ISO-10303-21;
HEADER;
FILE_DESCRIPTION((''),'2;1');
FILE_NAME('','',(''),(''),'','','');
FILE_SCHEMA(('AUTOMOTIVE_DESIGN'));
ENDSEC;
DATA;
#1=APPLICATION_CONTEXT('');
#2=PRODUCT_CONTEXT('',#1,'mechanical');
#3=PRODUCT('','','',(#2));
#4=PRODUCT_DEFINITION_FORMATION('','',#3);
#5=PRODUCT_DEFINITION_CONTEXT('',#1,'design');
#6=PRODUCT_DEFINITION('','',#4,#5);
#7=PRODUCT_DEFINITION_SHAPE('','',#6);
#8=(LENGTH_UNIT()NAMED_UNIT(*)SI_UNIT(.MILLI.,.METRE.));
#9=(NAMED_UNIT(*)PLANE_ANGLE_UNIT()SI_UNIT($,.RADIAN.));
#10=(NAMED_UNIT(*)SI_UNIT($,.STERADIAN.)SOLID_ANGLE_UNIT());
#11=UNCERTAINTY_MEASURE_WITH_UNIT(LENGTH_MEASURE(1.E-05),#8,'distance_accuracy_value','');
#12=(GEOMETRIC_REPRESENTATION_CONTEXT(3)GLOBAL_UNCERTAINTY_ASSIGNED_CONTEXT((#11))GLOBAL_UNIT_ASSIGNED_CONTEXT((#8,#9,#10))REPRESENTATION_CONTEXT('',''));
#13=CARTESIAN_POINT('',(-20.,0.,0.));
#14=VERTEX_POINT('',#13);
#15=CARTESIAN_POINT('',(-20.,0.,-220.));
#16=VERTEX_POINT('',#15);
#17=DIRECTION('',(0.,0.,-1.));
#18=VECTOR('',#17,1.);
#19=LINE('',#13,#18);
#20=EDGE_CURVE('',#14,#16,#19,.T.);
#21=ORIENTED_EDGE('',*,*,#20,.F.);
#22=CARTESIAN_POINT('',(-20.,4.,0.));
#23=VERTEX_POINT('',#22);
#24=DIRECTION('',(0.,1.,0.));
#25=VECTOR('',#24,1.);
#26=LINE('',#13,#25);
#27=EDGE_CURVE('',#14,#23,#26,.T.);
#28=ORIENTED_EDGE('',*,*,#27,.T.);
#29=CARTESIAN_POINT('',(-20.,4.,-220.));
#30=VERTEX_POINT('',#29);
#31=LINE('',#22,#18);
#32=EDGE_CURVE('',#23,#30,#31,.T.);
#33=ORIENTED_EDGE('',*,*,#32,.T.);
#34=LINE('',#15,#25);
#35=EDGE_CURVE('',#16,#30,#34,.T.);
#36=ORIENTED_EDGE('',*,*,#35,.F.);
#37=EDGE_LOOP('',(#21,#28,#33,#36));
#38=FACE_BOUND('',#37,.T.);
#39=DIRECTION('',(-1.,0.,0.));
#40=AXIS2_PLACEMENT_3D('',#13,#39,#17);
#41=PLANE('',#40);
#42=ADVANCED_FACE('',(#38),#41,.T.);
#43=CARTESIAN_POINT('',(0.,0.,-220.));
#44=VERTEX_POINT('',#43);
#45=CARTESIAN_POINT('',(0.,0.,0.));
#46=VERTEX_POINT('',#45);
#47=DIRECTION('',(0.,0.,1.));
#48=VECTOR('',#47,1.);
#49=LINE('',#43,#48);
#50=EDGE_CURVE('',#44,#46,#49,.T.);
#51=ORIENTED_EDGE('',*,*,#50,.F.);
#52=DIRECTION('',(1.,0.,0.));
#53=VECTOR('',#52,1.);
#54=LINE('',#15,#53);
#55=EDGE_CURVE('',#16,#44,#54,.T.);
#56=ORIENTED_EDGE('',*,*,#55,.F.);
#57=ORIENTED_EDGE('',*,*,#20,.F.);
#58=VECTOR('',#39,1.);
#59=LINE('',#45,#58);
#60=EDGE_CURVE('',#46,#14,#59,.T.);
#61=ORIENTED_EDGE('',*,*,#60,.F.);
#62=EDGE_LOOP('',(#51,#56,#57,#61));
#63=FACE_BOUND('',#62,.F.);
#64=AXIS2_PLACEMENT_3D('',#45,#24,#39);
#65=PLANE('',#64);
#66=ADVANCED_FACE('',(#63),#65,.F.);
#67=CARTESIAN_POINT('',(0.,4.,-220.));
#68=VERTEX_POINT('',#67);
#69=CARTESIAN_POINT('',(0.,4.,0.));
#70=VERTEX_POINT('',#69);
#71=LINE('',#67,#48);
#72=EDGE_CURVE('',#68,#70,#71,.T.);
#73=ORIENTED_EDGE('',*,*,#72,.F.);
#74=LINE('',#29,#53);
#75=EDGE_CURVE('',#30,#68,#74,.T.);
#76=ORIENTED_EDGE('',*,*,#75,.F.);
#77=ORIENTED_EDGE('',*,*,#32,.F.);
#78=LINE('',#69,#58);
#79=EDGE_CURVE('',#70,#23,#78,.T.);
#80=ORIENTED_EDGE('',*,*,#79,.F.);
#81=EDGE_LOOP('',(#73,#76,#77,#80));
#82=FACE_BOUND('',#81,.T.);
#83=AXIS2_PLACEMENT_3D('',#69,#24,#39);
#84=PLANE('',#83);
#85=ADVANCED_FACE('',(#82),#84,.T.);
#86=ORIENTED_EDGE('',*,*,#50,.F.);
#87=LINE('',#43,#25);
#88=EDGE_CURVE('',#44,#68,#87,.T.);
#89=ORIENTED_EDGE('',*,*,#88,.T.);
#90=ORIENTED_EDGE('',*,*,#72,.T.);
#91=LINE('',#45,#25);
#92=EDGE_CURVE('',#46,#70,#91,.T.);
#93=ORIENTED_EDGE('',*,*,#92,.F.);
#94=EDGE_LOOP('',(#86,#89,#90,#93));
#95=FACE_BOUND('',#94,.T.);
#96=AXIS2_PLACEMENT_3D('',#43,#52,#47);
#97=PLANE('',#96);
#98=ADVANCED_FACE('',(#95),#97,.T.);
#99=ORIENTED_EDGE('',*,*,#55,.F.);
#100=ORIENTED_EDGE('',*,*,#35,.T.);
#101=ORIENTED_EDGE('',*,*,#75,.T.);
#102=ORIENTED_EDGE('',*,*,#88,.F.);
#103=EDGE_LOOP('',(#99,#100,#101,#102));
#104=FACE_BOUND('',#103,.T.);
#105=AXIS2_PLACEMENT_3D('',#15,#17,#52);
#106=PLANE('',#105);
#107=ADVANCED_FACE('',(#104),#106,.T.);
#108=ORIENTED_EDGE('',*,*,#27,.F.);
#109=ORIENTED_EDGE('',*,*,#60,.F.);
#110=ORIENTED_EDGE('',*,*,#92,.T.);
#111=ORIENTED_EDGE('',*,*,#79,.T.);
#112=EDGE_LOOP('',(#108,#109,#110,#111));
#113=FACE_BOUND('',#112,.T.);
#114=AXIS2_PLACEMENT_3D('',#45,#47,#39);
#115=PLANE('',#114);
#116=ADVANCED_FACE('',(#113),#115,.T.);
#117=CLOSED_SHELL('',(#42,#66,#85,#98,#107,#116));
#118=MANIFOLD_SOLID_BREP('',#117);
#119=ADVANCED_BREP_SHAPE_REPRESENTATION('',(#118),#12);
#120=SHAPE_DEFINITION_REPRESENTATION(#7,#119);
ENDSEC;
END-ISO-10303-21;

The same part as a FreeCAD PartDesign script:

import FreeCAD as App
import Part
import Sketcher
from FreeCAD import Vector

doc = App.newDocument("Part")
body = doc.addObject("PartDesign::Body", "Body")

# Sketch on XZ plane
sketch1 = body.newObject("Sketcher::SketchObject", "Sketch")
sketch1.AttachmentSupport = (doc.getObject("XZ_Plane"), [""])
sketch1.MapMode = "FlatFace"
sketch1.addGeometry([
    Part.LineSegment(Vector(-20, 0, 0), Vector(0, 0, 0)),
    Part.LineSegment(Vector(0, 0, 0), Vector(0, -220, 0)),
    Part.LineSegment(Vector(0, -220, 0), Vector(-20, -220, 0)),
    Part.LineSegment(Vector(-20, -220, 0), Vector(-20, 0, 0)),
], False)
sketch1.addConstraint([
    Sketcher.Constraint("Coincident", 0, 2, 1, 1),
    Sketcher.Constraint("Coincident", 1, 2, 2, 1),
    Sketcher.Constraint("Coincident", 2, 2, 3, 1),
    Sketcher.Constraint("Coincident", 3, 2, 0, 1),
    Sketcher.Constraint("Horizontal", 0),
    Sketcher.Constraint("Vertical", 1),
    Sketcher.Constraint("Horizontal", 2),
    Sketcher.Constraint("Vertical", 3),
    Sketcher.Constraint("Coincident", 0, 2, -1, 1),
    Sketcher.Constraint("DistanceX", 0, 1, 0, 2, 20.0),
    Sketcher.Constraint("DistanceY", 1, 2, 1, 1, 220.0),
])
pad1 = body.newObject("PartDesign::Pad", "Pad")
pad1.Profile = sketch1
pad1.Length = 4
pad1.Reversed = True

doc.recompute()
